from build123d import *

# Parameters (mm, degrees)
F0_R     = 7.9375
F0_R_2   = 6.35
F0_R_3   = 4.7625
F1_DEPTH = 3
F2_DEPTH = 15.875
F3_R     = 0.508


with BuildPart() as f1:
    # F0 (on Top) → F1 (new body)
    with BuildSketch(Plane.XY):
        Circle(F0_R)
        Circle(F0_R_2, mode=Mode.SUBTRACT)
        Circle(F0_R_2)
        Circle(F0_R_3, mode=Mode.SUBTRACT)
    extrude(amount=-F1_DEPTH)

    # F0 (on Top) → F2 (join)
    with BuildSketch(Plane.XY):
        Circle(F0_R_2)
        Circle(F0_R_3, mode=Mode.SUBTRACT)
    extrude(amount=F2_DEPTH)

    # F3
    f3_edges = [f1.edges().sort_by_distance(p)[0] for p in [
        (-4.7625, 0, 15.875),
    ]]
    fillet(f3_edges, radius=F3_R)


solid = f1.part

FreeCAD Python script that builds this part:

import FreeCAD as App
import Part
import Sketcher
Q = App.Units.Quantity


def edges_at(feature, points):
    """Names of the edges that pass closest to the given points."""
    edges = feature.Shape.Edges
    near = lambda p: min(range(len(edges)), key=lambda i: edges[i].distToShape(Part.Vertex(*p))[0])
    return sorted({f"Edge{near(p) + 1}" for p in points})

doc = App.newDocument("Part")
body = doc.addObject("PartDesign::Body", "Body")

# Sketch on XY plane
sketch1 = body.newObject("Sketcher::SketchObject", "Sketch")
sketch1.AttachmentSupport = (doc.getObject("XY_Plane"), [""])
sketch1.MapMode = "FlatFace"
sketch1.addGeometry(Part.Circle(App.Vector(0, 0, 0), App.Vector(0, 0, 1), 7.9), False)
sketch1.addGeometry(Part.Circle(App.Vector(0, 0, 0), App.Vector(0, 0, 1), 4.8), False)
sketch1.addConstraint(Sketcher.Constraint("Coincident", 0, 3, -1, 1))
sketch1.addConstraint(Sketcher.Constraint("Coincident", 1, 3, -1, 1))
sketch1.addConstraint(Sketcher.Constraint("Diameter", 0, Q("0.625 in")))
sketch1.addConstraint(Sketcher.Constraint("Diameter", 1, Q("0.375 in")))
pad1 = body.newObject("PartDesign::Pad", "Pad")
pad1.Profile = sketch1
pad1.Length = 3
pad1.Reversed = True

# Sketch on XY plane
sketch2 = body.newObject("Sketcher::SketchObject", "Sketch001")
sketch2.AttachmentSupport = (doc.getObject("XY_Plane"), [""])
sketch2.MapMode = "FlatFace"
sketch2.addGeometry(Part.Circle(App.Vector(0, 0, 0), App.Vector(0, 0, 1), 6.3), False)
sketch2.addGeometry(Part.Circle(App.Vector(0, 0, 0), App.Vector(0, 0, 1), 4.8), False)
sketch2.addConstraint(Sketcher.Constraint("Coincident", 0, 3, -1, 1))
sketch2.addConstraint(Sketcher.Constraint("Coincident", 1, 3, -1, 1))
sketch2.addConstraint(Sketcher.Constraint("Diameter", 0, Q("0.5 in")))
sketch2.addConstraint(Sketcher.Constraint("Diameter", 1, Q("0.375 in")))
pad2 = body.newObject("PartDesign::Pad", "Pad001")
pad2.Profile = sketch2
pad2.Length = Q("0.625 in")
doc.recompute()

fillet = body.newObject("PartDesign::Fillet", "Fillet")
fillet.Base = (pad2, edges_at(pad2, [(-4.763, 0, 15.875)]))
fillet.Radius = Q("0.02 in")

doc.recompute()
